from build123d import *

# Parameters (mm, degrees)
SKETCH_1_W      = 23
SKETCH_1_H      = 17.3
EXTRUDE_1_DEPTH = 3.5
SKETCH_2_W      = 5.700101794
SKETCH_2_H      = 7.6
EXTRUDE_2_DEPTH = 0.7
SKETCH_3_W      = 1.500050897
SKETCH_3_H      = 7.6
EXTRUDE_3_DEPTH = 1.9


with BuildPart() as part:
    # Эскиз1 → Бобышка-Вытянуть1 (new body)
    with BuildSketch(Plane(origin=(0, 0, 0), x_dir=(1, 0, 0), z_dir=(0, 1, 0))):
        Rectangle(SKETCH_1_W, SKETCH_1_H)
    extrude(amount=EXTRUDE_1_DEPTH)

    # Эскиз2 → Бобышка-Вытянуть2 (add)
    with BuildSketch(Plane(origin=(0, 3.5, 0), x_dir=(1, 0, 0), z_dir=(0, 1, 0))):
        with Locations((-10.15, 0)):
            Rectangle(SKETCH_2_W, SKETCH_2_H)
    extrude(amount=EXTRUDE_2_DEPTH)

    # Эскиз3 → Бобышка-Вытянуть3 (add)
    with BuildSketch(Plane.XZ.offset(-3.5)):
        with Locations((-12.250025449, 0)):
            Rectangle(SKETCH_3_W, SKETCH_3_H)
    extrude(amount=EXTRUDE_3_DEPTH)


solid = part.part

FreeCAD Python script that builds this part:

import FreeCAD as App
import Part
import Sketcher
Q = App.Units.Quantity


def add_polygon(sketch, points):
    """Adds a closed chain of lines whose ends are joined by coincident constraints."""
    first, n = sketch.GeometryCount, len(points)
    for a, b in zip(points, points[1:] + points[:1]):
        sketch.addGeometry(Part.LineSegment(App.Vector(*a, 0), App.Vector(*b, 0)), False)
    for i in range(n):
        sketch.addConstraint(Sketcher.Constraint("Coincident", first + i, 2, first + (i + 1) % n, 1))

doc = App.newDocument("Part")
body = doc.addObject("PartDesign::Body", "Body")

# Sketch on XZ plane
sketch1 = body.newObject("Sketcher::SketchObject", "Sketch")
sketch1.AttachmentSupport = (doc.getObject("XZ_Plane"), [""])
sketch1.MapMode = "FlatFace"
add_polygon(sketch1, [(-11.5, -8.65), (-11.5, 8.65), (11.5, 8.65), (11.5, -8.65)])  # lines 0-3
sketch1.addConstraint(Sketcher.Constraint("Vertical", 0))
sketch1.addConstraint(Sketcher.Constraint("Horizontal", 1))
sketch1.addConstraint(Sketcher.Constraint("Vertical", 2))
sketch1.addConstraint(Sketcher.Constraint("Horizontal", 3))
sketch1.addConstraint(Sketcher.Constraint("Symmetric", 0, 2, 2, 2, -1, 1))
sketch1.addConstraint(Sketcher.Constraint("DistanceX", 1, 1, 1, 2, Q("23 mm")))
sketch1.addConstraint(Sketcher.Constraint("DistanceY", 0, 1, 0, 2, Q("17.3 mm")))
pad1 = body.newObject("PartDesign::Pad", "Pad")
pad1.Profile = sketch1
pad1.Length = 3.5
pad1.Reversed = True

# Sketch on XZ plane
sketch2 = body.newObject("Sketcher::SketchObject", "Sketch001")
sketch2.AttachmentSupport = (doc.getObject("XZ_Plane"), [""])
sketch2.MapMode = "FlatFace"
sketch2.AttachmentOffset = App.Placement(App.Vector(0, 0, -3.5), App.Rotation())
add_polygon(sketch2, [(-13.000051, -3.8), (-13.000051, 3.8), (-7.299949, 3.8), (-7.299949, -3.8)])  # lines 0-3
sketch2.addConstraint(Sketcher.Constraint("Vertical", 0))
sketch2.addConstraint(Sketcher.Constraint("Horizontal", 1))
sketch2.addConstraint(Sketcher.Constraint("Vertical", 2))
sketch2.addConstraint(Sketcher.Constraint("Horizontal", 3))
sketch2.addConstraint(Sketcher.Constraint("DistanceY", 0, 1, 0, 2, Q("7.6 mm")))
sketch2.addConstraint(Sketcher.Constraint("DistanceY", -1, 1, 0, 2, Q("3.8 mm")))
sketch2.addConstraint(Sketcher.Constraint("DistanceX", 1, 1, 1, 2, Q("5.700102 mm")))
sketch2.addConstraint(Sketcher.Constraint("DistanceX", 0, 2, -1, 1, Q("13.000051 mm")))
pad2 = body.newObject("PartDesign::Pad", "Pad001")
pad2.Profile = sketch2
pad2.Length = 0.7
pad2.Reversed = True

# Sketch on XZ plane
sketch3 = body.newObject("Sketcher::SketchObject", "Sketch002")
sketch3.AttachmentSupport = (doc.getObject("XZ_Plane"), [""])
sketch3.MapMode = "FlatFace"
sketch3.AttachmentOffset = App.Placement(App.Vector(0, 0, -3.5), App.Rotation())
add_polygon(sketch3, [(-13.000051, 3.8), (-13.000051, -3.8), (-11.5, -3.8), (-11.5, 3.8)])  # lines 0-3
sketch3.addConstraint(Sketcher.Constraint("Vertical", 0))
sketch3.addConstraint(Sketcher.Constraint("Horizontal", 1))
sketch3.addConstraint(Sketcher.Constraint("Vertical", 2))
sketch3.addConstraint(Sketcher.Constraint("Horizontal", 3))
sketch3.addConstraint(Sketcher.Constraint("DistanceY", 0, 2, 0, 1, Q("7.6 mm")))
sketch3.addConstraint(Sketcher.Constraint("DistanceY", 0, 2, -1, 1, Q("3.8 mm")))
sketch3.addConstraint(Sketcher.Constraint("DistanceX", 1, 2, -1, 1, Q("11.5 mm")))
sketch3.addConstraint(Sketcher.Constraint("DistanceX", 1, 1, 1, 2, Q("1.500051 mm")))
pad3 = body.newObject("PartDesign::Pad", "Pad002")
pad3.Profile = sketch3
pad3.Length = 1.9

doc.recompute()
